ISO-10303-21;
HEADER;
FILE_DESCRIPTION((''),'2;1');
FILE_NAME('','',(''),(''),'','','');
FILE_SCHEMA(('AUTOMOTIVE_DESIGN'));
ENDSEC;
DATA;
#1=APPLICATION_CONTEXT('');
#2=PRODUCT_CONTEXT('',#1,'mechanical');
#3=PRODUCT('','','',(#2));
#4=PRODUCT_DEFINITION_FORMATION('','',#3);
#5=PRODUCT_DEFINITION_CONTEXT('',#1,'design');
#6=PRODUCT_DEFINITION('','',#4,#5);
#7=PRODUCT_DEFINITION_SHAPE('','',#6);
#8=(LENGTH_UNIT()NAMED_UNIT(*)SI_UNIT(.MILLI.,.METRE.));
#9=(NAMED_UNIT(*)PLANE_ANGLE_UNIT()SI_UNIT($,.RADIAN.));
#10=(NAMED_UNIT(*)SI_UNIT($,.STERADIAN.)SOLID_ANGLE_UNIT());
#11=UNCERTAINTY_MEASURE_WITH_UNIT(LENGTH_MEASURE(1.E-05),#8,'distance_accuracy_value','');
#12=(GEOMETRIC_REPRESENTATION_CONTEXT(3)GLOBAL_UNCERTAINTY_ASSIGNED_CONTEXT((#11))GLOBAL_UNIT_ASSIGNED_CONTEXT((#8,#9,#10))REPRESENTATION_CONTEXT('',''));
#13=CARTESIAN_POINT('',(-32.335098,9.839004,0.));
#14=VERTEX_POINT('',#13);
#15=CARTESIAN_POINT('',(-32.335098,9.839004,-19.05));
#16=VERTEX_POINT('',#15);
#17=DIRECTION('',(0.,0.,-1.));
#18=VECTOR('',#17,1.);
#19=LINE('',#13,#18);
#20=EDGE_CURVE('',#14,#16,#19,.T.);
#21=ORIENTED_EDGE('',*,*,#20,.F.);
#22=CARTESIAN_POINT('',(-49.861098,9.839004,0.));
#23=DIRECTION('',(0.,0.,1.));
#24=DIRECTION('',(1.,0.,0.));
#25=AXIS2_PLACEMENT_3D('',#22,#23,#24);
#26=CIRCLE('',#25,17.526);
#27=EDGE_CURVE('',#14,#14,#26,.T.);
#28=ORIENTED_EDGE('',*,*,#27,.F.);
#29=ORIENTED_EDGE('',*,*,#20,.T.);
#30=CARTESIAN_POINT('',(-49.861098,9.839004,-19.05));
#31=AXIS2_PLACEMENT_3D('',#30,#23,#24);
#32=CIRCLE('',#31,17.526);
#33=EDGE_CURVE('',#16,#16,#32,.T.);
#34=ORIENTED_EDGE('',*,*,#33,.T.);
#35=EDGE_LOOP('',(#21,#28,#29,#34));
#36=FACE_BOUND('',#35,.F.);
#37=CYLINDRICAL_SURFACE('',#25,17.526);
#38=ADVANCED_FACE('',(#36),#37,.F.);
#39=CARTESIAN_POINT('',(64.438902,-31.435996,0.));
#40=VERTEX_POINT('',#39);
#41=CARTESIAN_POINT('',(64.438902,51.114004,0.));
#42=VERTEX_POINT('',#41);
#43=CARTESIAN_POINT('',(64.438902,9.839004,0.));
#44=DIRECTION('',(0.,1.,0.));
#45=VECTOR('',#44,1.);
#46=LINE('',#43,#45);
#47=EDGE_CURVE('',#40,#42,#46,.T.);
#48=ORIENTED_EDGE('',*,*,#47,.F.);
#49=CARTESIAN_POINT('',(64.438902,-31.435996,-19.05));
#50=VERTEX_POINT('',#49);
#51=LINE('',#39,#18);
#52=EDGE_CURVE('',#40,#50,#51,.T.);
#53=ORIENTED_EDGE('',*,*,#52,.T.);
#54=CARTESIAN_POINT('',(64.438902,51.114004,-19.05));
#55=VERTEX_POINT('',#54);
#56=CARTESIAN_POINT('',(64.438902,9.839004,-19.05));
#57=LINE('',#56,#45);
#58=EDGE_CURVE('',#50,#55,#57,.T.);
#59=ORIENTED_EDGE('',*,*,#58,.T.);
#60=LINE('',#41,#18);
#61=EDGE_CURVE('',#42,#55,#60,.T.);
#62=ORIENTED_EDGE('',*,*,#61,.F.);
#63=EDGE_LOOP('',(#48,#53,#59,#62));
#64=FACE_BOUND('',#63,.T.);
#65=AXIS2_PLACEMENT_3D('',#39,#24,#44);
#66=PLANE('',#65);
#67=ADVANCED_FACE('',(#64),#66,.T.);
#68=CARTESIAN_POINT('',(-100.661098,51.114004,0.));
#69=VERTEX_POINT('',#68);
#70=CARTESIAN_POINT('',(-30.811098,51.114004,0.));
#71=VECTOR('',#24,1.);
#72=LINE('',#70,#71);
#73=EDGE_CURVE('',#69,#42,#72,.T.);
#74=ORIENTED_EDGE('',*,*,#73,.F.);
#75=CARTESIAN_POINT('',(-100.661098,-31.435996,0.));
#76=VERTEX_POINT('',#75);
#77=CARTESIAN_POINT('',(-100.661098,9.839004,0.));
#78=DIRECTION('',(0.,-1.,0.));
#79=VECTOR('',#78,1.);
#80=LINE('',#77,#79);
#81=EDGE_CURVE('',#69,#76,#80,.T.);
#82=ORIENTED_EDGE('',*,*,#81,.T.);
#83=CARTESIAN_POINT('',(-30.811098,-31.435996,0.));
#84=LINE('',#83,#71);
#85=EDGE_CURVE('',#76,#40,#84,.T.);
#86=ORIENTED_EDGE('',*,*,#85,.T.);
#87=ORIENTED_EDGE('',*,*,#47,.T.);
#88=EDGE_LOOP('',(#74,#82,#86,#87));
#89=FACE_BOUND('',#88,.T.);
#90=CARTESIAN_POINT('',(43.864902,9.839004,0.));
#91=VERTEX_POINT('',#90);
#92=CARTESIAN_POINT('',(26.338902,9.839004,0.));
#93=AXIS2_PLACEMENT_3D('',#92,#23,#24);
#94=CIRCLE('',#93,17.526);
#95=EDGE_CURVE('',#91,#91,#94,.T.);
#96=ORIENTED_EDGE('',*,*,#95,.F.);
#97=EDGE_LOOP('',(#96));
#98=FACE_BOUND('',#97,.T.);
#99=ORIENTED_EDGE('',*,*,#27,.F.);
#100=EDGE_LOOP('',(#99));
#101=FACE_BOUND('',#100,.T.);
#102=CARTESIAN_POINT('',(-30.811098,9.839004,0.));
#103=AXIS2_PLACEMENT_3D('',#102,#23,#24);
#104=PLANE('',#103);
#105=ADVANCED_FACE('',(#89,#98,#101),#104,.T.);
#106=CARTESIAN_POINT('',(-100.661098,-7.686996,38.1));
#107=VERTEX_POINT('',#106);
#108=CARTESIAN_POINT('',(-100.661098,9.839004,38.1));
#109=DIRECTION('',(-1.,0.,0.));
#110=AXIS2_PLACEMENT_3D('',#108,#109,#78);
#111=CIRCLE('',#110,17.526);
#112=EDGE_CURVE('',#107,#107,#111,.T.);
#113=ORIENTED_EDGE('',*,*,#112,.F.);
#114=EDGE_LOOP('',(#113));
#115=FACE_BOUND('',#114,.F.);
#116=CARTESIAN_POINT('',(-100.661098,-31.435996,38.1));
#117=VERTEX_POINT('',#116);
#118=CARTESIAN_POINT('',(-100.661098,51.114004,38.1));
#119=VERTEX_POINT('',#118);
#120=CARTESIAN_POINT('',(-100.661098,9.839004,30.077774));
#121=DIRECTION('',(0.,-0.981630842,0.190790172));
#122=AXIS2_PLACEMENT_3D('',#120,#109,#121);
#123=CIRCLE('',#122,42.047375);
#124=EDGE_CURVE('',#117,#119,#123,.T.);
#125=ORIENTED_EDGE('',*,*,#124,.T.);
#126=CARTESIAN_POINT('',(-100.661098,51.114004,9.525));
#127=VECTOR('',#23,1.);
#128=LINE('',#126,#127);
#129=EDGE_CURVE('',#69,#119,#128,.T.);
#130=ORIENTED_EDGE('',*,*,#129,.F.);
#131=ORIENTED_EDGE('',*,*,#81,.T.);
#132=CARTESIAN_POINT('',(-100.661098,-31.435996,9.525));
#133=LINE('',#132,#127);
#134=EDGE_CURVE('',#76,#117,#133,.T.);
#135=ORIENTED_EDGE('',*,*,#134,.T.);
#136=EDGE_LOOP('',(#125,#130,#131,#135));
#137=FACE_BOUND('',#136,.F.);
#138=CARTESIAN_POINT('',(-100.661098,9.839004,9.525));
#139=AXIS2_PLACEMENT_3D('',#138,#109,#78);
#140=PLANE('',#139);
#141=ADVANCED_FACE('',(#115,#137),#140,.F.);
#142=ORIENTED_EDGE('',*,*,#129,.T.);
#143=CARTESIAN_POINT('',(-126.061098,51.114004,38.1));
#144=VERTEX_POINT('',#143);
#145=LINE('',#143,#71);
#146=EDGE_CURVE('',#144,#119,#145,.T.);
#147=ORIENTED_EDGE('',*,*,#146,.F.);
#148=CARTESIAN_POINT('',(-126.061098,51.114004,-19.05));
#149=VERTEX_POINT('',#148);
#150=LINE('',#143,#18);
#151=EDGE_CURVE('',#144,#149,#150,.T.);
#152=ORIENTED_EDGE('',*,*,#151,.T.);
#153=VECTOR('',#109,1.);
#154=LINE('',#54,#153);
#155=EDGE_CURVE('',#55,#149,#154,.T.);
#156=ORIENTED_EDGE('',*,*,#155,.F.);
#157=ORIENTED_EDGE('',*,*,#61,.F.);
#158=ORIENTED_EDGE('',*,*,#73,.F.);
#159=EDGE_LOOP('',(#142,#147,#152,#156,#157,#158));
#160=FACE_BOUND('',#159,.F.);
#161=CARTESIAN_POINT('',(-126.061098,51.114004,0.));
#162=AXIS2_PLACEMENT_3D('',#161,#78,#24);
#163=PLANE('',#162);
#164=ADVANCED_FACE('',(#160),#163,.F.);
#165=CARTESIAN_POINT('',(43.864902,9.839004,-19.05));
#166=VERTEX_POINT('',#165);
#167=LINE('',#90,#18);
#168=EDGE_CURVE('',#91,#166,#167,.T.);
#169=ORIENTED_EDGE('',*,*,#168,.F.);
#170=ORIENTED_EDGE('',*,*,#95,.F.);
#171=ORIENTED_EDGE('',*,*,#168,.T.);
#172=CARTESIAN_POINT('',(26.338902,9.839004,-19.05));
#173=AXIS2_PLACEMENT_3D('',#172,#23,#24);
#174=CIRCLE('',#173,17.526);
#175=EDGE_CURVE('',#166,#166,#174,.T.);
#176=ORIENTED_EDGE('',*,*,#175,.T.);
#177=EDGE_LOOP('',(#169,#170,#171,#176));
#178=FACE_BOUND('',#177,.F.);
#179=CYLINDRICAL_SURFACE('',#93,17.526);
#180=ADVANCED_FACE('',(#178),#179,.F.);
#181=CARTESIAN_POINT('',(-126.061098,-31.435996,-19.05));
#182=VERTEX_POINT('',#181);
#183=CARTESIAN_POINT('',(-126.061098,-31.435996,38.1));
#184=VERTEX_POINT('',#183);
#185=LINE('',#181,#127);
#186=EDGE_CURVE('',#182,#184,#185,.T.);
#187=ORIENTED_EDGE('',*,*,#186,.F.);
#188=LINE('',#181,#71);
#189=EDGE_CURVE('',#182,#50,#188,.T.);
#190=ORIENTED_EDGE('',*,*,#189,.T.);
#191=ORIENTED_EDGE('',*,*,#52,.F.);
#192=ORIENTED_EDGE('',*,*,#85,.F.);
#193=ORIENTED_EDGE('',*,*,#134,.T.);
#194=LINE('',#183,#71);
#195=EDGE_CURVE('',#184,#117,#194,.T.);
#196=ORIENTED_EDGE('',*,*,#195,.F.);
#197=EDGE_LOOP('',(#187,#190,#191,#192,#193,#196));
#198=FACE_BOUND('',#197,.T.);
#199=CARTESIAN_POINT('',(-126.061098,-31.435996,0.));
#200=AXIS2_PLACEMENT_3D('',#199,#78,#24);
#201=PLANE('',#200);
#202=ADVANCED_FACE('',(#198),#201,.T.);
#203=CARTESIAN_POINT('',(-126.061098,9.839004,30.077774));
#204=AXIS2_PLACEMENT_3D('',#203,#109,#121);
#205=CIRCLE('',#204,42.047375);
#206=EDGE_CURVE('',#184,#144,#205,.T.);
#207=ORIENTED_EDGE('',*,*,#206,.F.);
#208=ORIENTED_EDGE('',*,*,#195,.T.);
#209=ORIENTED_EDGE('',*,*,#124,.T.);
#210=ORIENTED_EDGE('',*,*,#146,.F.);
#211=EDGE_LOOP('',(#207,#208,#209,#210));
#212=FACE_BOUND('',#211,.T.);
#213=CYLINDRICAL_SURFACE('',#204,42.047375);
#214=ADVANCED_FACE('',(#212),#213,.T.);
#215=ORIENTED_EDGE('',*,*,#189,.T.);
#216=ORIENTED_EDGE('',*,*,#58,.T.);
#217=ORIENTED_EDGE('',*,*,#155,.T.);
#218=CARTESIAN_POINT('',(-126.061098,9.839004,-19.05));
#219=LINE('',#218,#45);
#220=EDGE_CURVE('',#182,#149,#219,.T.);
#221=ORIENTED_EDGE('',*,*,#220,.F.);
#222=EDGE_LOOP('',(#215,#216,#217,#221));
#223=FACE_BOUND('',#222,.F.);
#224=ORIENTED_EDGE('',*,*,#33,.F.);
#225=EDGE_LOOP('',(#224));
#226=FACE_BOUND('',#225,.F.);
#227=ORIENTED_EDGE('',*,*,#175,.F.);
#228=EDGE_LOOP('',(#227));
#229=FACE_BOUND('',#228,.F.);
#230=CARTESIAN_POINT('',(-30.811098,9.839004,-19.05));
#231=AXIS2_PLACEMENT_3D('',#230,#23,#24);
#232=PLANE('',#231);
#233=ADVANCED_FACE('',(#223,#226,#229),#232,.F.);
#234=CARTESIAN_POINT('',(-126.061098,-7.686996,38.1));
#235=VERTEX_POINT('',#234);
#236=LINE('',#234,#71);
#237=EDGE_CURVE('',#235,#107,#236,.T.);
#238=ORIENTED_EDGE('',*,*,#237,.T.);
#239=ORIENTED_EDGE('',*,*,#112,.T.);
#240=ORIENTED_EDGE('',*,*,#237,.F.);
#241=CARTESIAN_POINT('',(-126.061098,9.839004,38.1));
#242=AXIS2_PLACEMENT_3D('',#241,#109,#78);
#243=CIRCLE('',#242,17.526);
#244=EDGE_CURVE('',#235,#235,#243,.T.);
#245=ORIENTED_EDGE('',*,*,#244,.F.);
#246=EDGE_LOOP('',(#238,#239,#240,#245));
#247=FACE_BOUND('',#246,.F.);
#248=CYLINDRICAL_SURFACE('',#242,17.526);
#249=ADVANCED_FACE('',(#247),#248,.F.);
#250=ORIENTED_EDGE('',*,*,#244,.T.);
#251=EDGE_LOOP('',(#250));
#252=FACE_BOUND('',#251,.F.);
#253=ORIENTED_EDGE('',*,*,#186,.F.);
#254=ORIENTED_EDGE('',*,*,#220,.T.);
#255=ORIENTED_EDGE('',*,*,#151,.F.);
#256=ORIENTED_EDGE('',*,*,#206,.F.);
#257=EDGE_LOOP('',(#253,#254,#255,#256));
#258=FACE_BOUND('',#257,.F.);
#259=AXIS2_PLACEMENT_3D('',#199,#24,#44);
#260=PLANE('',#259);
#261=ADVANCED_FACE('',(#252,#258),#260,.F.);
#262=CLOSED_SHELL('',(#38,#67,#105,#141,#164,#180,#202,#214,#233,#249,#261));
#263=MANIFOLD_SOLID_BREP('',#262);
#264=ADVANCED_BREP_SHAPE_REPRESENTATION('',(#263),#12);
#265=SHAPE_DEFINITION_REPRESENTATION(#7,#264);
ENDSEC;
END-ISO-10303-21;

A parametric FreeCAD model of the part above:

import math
import FreeCAD as App
import Part
import Sketcher

V = App.Vector
Q = App.Units.Quantity


def add_polygon(sketch, points):
    """Adds a closed chain of lines whose ends are joined by coincident constraints."""
    first, n = sketch.GeometryCount, len(points)
    for a, b in zip(points, points[1:] + points[:1]):
        sketch.addGeometry(Part.LineSegment(App.Vector(*a, 0), App.Vector(*b, 0)), False)
    for i in range(n):
        sketch.addConstraint(Sketcher.Constraint("Coincident", first + i, 2, first + (i + 1) % n, 1))

doc = App.newDocument("Part")
body = doc.addObject("PartDesign::Body", "Body")

# Sketch on XY plane
sketch1 = body.newObject("Sketcher::SketchObject", "Sketch")
sketch1.AttachmentSupport = (doc.getObject("XY_Plane"), [""])
sketch1.MapMode = "FlatFace"
add_polygon(sketch1, [(-126, 51), (-126, -31), (64, -31), (64, 51)])  # lines 0-3
sketch1.addGeometry(Part.Circle(V(-50, 10, 0), V(0, 0, 1), 18), False)  # 4
sketch1.addGeometry(Part.Circle(V(26, 10, 0), V(0, 0, 1), 18), False)  # 5
sketch1.addConstraint([
    Sketcher.Constraint("Vertical", 0),
    Sketcher.Constraint("Horizontal", 1),
    Sketcher.Constraint("Vertical", 2),
    Sketcher.Constraint("Horizontal", 3),
    Sketcher.Constraint("Equal", 4, 5),
    Sketcher.Constraint("Horizontal", 4, 3, 5, 3),
    Sketcher.Constraint("Diameter", 4, Q("1.38 in")),
    Sketcher.Constraint("DistanceX", 1, 1, 1, 2, Q("7.5 in")),
    Sketcher.Constraint("DistanceX", 4, 3, 5, 3, Q("3 in")),
    Sketcher.Constraint("DistanceX", 0, 2, 4, 3, Q("3 in")),
    Sketcher.Constraint("DistanceY", 0, 2, 0, 1, Q("3.25 in")),
    Sketcher.Constraint("DistanceY", 0, 2, 4, 3, Q("1.625 in")),
    Sketcher.Constraint("DistanceX", 0, 2, -1, 1, Q("126.061098 mm")),
    Sketcher.Constraint("DistanceY", -1, 1, 4, 3, Q("9.839004 mm")),
])
pad1 = body.newObject("PartDesign::Pad", "Pad")
pad1.Profile = sketch1
pad1.Length = Q("0.75 in")
pad1.Reversed = True

# Sketch on YZ plane
sketch2 = body.newObject("Sketcher::SketchObject", "Sketch001")
sketch2.AttachmentSupport = (doc.getObject("YZ_Plane"), [""])
sketch2.MapMode = "FlatFace"
sketch2.AttachmentOffset = App.Placement(V(0, 0, -126.061098), App.Rotation())
sketch2.addGeometry([
    Part.LineSegment(V(51, 38, 0), V(51, -19, 0)),
    Part.LineSegment(V(51, -19, 0), V(-31, -19, 0)),
    Part.LineSegment(V(-31, -19, 0), V(-31, 38, 0)),
    Part.ArcOfCircle(Part.Circle(V(10, 30, 0), V(0, 0, 1), 42), math.radians(11), math.radians(169)),
], False)
sketch2.addConstraint([
    Sketcher.Constraint("Coincident", 0, 2, 1, 1),
    Sketcher.Constraint("Coincident", 1, 2, 2, 1),
    Sketcher.Constraint("Coincident", 2, 2, 3, 2),
    Sketcher.Constraint("Coincident", 3, 1, 0, 1),
    Sketcher.Constraint("Vertical", 0),
    Sketcher.Constraint("Horizontal", 1),
    Sketcher.Constraint("Vertical", 2),
    Sketcher.Constraint("Horizontal", 2, 2, 3, 1),
    Sketcher.Constraint("DistanceX", 1, 2, 1, 1, Q("3.25 in")),
    Sketcher.Constraint("DistanceY", 0, 2, 0, 1, Q("2.25 in")),
    Sketcher.Constraint("DistanceY", -1, 1, 2, 2, Q("1.5 in")),
    Sketcher.Constraint("Radius", 3, Q("42.047375 mm")),
    Sketcher.Constraint("DistanceX", -1, 1, 3, 3, Q("9.839004 mm")),
])
pad2 = body.newObject("PartDesign::Pad", "Pad001")
pad2.Profile = sketch2
pad2.Length = Q("1 in")

# Sketch on YZ plane
sketch3 = body.newObject("Sketcher::SketchObject", "Sketch002")
sketch3.AttachmentSupport = (doc.getObject("YZ_Plane"), [""])
sketch3.MapMode = "FlatFace"
sketch3.AttachmentOffset = App.Placement(V(0, 0, -126.061098), App.Rotation())
sketch3.addGeometry(Part.Circle(V(10, 38, 0), V(0, 0, 1), 18), False)
sketch3.addConstraint([
    Sketcher.Constraint("Diameter", 0, Q("1.38 in")),
    Sketcher.Constraint("DistanceY", -1, 1, 0, 3, Q("1.5 in")),
    Sketcher.Constraint("DistanceX", -1, 1, 0, 3, Q("9.839004 mm")),
])
pocket1 = body.newObject("PartDesign::Pocket", "Pocket")
pocket1.Profile = sketch3
pocket1.Length = Q("1 in")
pocket1.Reversed = True

doc.recompute()
